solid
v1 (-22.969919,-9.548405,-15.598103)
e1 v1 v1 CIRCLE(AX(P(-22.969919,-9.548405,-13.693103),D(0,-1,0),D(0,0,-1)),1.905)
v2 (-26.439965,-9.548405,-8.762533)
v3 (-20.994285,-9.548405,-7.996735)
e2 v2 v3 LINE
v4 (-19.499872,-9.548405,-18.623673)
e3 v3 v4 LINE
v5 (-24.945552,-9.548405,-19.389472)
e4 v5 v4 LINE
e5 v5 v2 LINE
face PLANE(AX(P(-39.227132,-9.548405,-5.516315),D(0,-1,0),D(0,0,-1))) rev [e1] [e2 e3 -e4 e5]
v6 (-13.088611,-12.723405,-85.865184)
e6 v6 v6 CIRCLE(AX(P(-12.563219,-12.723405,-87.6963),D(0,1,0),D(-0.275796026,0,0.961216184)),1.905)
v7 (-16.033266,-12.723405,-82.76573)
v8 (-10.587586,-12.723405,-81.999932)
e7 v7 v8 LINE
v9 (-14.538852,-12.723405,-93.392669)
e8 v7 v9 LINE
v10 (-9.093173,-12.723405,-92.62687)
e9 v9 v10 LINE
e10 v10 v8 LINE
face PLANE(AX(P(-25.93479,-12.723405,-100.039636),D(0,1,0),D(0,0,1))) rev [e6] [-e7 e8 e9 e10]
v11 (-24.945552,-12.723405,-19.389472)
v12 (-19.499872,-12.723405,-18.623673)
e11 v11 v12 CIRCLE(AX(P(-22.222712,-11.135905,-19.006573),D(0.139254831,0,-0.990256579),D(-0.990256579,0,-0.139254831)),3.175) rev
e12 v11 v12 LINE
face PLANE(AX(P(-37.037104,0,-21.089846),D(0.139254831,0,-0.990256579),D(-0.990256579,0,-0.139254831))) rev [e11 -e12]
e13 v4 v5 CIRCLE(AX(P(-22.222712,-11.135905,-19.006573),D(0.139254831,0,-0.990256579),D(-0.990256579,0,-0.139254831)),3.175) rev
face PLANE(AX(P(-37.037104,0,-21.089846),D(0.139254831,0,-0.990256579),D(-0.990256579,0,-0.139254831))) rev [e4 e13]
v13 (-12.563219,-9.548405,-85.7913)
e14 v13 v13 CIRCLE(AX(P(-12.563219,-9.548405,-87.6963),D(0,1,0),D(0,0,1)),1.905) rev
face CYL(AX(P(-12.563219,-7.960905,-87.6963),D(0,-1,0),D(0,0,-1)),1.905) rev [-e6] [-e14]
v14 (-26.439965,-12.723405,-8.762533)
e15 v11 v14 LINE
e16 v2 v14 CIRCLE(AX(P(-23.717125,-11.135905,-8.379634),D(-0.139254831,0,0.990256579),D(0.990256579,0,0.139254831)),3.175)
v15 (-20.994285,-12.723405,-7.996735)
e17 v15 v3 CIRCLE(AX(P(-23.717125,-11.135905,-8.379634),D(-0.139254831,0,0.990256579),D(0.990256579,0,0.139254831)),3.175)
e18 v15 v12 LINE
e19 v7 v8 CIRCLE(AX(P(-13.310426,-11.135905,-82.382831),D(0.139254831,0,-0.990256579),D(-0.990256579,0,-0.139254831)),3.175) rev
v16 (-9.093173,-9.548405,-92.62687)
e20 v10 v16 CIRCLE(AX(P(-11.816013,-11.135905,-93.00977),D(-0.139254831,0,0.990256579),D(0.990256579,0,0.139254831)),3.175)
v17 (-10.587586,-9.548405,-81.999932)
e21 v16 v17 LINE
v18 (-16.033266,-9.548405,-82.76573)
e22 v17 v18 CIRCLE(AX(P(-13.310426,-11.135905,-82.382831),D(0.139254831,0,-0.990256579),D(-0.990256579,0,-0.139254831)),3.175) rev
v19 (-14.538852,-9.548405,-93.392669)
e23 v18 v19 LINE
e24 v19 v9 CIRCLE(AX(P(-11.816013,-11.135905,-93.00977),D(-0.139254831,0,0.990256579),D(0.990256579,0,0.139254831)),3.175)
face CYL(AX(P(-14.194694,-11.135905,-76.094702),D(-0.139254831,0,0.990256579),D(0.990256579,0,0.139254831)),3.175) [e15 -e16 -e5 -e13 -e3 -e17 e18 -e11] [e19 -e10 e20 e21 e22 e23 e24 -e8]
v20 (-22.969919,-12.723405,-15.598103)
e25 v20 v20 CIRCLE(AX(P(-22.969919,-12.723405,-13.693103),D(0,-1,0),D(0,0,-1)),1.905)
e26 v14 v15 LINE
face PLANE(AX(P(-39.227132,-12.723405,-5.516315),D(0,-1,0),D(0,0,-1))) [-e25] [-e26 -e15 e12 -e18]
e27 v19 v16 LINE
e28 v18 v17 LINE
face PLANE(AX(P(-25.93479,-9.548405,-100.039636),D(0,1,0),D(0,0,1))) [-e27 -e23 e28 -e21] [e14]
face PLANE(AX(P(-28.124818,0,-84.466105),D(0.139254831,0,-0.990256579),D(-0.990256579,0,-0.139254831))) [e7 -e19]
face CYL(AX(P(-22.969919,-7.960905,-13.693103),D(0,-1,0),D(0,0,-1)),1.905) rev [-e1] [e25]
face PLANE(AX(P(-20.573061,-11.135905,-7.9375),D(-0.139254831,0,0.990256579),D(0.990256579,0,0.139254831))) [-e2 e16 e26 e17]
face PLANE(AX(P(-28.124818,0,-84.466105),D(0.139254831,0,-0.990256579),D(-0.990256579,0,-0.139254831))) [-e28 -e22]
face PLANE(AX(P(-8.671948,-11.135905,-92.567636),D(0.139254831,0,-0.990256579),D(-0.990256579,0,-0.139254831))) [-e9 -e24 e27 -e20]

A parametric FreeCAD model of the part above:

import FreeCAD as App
import Part
import Sketcher
from FreeCAD import Vector
Q = App.Units.Quantity


def add_polygon(sketch, points):
    """Adds a closed chain of lines whose ends are joined by coincident constraints."""
    first, n = sketch.GeometryCount, len(points)
    for a, b in zip(points, points[1:] + points[:1]):
        sketch.addGeometry(Part.LineSegment(App.Vector(*a, 0), App.Vector(*b, 0)), False)
    for i in range(n):
        sketch.addConstraint(Sketcher.Constraint("Coincident", first + i, 2, first + (i + 1) % n, 1))

doc = App.newDocument("Part")
body = doc.addObject("PartDesign::Body", "Body")

# Sketch on XZ plane
sketch1 = doc.addObject("Sketcher::SketchObject", "Sketch")
body.addObject(sketch1)
sketch1.AttachmentSupport = (doc.XZ_Plane, [""])
sketch1.MapMode = "FlatFace"
sketch1.AttachmentOffset = App.Placement(Vector(0, 0, 11.135905), App.Rotation())
add_polygon(sketch1, [(-23.7, -8.4), (-20.6, -7.9), (-8.7, -92.6), (-11.8, -93), (-14.2, -76.1), (-21.3, -25.3)])  # lines 0-5
sketch1.addGeometry(Part.LineSegment(Vector(-23.7, -8.4, 0), Vector(-11.8, -93, 0)), True)  # axis
sketch1.addConstraint([
    Sketcher.Constraint("Coincident", 6, 1, 5, 2),
    Sketcher.Constraint("Coincident", 6, 2, 2, 2),
    Sketcher.Constraint("Perpendicular", 0, 1),
    Sketcher.Constraint("Perpendicular", 1, 2),
    Sketcher.Constraint("Perpendicular", 2, 3),
    Sketcher.Constraint("Parallel", 3, 4),
    Sketcher.Constraint("Parallel", 4, 5),
    Sketcher.Constraint("Equal", 3, 5),
    Sketcher.Constraint("DistanceY", 3, 2, 4, 2, Q("2 in")),
    Sketcher.Constraint("Distance", 0, Q("0.125 in")),
    Sketcher.Constraint("DistanceY", 0, 2, -1, 1, Q("0.3125 in")),
    Sketcher.Constraint("DistanceX", 4, 2, 3, 2, Q("0.28125 in")),
    Sketcher.Constraint("Distance", 3, Q("0.6725 in")),
    Sketcher.Constraint("DistanceX", 0, 2, -1, 1, Q("20.573061 mm")),
])
revolution = doc.addObject("PartDesign::Revolution", "Revolution")
body.addObject(revolution)
revolution.Profile = sketch1
revolution.ReferenceAxis = (sketch1, ["Axis0"])
revolution.Angle = 360

# Sketch on an angled plane
sketch2 = doc.addObject("Sketcher::SketchObject", "Sketch001")
body.addObject(sketch2)
sketch2.Placement = App.Placement(Vector(-24.41274, 0, -3.433042), App.Rotation(Vector(0.139254831, 0, -0.990256579), Vector(0, 1, 0), Vector(0.990256579, 0, 0.139254831), "ZXY"))
add_polygon(sketch2, [(5, -12.7), (5, -14.3), (15.7, -14.3), (15.7, -12.7)])  # lines 0-3
add_polygon(sketch2, [(5, -8), (5, -9.5), (15.7, -9.5), (15.7, -8)])  # lines 4-7
sketch2.addConstraint([
    Sketcher.Constraint("Vertical", 0),
    Sketcher.Constraint("Horizontal", 1),
    Sketcher.Constraint("Vertical", 2),
    Sketcher.Constraint("Horizontal", 3),
    Sketcher.Constraint("Vertical", 4),
    Sketcher.Constraint("Horizontal", 5),
    Sketcher.Constraint("Vertical", 6),
    Sketcher.Constraint("Horizontal", 7),
    Sketcher.Constraint("Vertical", 3, 2, 4, 2),
    Sketcher.Constraint("Vertical", 2, 2, 5, 2),
    Sketcher.Constraint("Equal", 2, 4),
    Sketcher.Constraint("DistanceY", 0, 2, 0, 1, Q("0.0625 in")),
    Sketcher.Constraint("DistanceY", 1, 2, 6, 2, Q("0.25 in")),
    Sketcher.Constraint("DistanceX", 1, 1, 1, 2, Q("0.4225 in")),
    Sketcher.Constraint("DistanceX", -1, 1, 0, 2, Q("4.995263 mm")),
    Sketcher.Constraint("DistanceY", 0, 2, -1, 1, Q("14.310905 mm")),
])
pocket1 = doc.addObject("PartDesign::Pocket", "Pocket")
body.addObject(pocket1)
pocket1.Profile = sketch2
pocket1.Length = 186.996974
pocket1.Midplane = True

# Sketch on XZ plane
sketch3 = doc.addObject("Sketcher::SketchObject", "Sketch002")
body.addObject(sketch3)
sketch3.AttachmentSupport = (doc.XZ_Plane, [""])
sketch3.MapMode = "FlatFace"
sketch3.AttachmentOffset = App.Placement(Vector(0, 0, 12.723405), App.Rotation())
sketch3.addGeometry(Part.Circle(Vector(-23, -13.7, 0), Vector(0, 0, 1), 1.9), False)
sketch3.addConstraint([
    Sketcher.Constraint("Diameter", 0, Q("0.15 in")),
    Sketcher.Constraint("DistanceX", 0, 3, -1, 1, Q("22.969919 mm")),
    Sketcher.Constraint("DistanceY", 0, 3, -1, 1, Q("13.693103 mm")),
])
pocket2 = doc.addObject("PartDesign::Pocket", "Pocket001")
body.addObject(pocket2)
pocket2.Profile = sketch3
pocket2.Type = "ThroughAll"
doc.recompute()

datumplane = doc.addObject("PartDesign::Plane", "DatumPlane")
body.addObject(datumplane)
datumplane.Placement = App.Placement(Vector(6.646171, 0, -47.26166), App.Rotation(Vector(-0.990256579, 0, -0.139254831), Vector(0, -1, 0), Vector(-0.139254831, 0, 0.990256579), "ZXY"))
mirrored = doc.addObject("PartDesign::Mirrored", "Mirrored")
body.addObject(mirrored)
mirrored.Originals = [pocket1, pocket2]
mirrored.MirrorPlane = (datumplane, [""])
body.Tip = mirrored

doc.recompute()
